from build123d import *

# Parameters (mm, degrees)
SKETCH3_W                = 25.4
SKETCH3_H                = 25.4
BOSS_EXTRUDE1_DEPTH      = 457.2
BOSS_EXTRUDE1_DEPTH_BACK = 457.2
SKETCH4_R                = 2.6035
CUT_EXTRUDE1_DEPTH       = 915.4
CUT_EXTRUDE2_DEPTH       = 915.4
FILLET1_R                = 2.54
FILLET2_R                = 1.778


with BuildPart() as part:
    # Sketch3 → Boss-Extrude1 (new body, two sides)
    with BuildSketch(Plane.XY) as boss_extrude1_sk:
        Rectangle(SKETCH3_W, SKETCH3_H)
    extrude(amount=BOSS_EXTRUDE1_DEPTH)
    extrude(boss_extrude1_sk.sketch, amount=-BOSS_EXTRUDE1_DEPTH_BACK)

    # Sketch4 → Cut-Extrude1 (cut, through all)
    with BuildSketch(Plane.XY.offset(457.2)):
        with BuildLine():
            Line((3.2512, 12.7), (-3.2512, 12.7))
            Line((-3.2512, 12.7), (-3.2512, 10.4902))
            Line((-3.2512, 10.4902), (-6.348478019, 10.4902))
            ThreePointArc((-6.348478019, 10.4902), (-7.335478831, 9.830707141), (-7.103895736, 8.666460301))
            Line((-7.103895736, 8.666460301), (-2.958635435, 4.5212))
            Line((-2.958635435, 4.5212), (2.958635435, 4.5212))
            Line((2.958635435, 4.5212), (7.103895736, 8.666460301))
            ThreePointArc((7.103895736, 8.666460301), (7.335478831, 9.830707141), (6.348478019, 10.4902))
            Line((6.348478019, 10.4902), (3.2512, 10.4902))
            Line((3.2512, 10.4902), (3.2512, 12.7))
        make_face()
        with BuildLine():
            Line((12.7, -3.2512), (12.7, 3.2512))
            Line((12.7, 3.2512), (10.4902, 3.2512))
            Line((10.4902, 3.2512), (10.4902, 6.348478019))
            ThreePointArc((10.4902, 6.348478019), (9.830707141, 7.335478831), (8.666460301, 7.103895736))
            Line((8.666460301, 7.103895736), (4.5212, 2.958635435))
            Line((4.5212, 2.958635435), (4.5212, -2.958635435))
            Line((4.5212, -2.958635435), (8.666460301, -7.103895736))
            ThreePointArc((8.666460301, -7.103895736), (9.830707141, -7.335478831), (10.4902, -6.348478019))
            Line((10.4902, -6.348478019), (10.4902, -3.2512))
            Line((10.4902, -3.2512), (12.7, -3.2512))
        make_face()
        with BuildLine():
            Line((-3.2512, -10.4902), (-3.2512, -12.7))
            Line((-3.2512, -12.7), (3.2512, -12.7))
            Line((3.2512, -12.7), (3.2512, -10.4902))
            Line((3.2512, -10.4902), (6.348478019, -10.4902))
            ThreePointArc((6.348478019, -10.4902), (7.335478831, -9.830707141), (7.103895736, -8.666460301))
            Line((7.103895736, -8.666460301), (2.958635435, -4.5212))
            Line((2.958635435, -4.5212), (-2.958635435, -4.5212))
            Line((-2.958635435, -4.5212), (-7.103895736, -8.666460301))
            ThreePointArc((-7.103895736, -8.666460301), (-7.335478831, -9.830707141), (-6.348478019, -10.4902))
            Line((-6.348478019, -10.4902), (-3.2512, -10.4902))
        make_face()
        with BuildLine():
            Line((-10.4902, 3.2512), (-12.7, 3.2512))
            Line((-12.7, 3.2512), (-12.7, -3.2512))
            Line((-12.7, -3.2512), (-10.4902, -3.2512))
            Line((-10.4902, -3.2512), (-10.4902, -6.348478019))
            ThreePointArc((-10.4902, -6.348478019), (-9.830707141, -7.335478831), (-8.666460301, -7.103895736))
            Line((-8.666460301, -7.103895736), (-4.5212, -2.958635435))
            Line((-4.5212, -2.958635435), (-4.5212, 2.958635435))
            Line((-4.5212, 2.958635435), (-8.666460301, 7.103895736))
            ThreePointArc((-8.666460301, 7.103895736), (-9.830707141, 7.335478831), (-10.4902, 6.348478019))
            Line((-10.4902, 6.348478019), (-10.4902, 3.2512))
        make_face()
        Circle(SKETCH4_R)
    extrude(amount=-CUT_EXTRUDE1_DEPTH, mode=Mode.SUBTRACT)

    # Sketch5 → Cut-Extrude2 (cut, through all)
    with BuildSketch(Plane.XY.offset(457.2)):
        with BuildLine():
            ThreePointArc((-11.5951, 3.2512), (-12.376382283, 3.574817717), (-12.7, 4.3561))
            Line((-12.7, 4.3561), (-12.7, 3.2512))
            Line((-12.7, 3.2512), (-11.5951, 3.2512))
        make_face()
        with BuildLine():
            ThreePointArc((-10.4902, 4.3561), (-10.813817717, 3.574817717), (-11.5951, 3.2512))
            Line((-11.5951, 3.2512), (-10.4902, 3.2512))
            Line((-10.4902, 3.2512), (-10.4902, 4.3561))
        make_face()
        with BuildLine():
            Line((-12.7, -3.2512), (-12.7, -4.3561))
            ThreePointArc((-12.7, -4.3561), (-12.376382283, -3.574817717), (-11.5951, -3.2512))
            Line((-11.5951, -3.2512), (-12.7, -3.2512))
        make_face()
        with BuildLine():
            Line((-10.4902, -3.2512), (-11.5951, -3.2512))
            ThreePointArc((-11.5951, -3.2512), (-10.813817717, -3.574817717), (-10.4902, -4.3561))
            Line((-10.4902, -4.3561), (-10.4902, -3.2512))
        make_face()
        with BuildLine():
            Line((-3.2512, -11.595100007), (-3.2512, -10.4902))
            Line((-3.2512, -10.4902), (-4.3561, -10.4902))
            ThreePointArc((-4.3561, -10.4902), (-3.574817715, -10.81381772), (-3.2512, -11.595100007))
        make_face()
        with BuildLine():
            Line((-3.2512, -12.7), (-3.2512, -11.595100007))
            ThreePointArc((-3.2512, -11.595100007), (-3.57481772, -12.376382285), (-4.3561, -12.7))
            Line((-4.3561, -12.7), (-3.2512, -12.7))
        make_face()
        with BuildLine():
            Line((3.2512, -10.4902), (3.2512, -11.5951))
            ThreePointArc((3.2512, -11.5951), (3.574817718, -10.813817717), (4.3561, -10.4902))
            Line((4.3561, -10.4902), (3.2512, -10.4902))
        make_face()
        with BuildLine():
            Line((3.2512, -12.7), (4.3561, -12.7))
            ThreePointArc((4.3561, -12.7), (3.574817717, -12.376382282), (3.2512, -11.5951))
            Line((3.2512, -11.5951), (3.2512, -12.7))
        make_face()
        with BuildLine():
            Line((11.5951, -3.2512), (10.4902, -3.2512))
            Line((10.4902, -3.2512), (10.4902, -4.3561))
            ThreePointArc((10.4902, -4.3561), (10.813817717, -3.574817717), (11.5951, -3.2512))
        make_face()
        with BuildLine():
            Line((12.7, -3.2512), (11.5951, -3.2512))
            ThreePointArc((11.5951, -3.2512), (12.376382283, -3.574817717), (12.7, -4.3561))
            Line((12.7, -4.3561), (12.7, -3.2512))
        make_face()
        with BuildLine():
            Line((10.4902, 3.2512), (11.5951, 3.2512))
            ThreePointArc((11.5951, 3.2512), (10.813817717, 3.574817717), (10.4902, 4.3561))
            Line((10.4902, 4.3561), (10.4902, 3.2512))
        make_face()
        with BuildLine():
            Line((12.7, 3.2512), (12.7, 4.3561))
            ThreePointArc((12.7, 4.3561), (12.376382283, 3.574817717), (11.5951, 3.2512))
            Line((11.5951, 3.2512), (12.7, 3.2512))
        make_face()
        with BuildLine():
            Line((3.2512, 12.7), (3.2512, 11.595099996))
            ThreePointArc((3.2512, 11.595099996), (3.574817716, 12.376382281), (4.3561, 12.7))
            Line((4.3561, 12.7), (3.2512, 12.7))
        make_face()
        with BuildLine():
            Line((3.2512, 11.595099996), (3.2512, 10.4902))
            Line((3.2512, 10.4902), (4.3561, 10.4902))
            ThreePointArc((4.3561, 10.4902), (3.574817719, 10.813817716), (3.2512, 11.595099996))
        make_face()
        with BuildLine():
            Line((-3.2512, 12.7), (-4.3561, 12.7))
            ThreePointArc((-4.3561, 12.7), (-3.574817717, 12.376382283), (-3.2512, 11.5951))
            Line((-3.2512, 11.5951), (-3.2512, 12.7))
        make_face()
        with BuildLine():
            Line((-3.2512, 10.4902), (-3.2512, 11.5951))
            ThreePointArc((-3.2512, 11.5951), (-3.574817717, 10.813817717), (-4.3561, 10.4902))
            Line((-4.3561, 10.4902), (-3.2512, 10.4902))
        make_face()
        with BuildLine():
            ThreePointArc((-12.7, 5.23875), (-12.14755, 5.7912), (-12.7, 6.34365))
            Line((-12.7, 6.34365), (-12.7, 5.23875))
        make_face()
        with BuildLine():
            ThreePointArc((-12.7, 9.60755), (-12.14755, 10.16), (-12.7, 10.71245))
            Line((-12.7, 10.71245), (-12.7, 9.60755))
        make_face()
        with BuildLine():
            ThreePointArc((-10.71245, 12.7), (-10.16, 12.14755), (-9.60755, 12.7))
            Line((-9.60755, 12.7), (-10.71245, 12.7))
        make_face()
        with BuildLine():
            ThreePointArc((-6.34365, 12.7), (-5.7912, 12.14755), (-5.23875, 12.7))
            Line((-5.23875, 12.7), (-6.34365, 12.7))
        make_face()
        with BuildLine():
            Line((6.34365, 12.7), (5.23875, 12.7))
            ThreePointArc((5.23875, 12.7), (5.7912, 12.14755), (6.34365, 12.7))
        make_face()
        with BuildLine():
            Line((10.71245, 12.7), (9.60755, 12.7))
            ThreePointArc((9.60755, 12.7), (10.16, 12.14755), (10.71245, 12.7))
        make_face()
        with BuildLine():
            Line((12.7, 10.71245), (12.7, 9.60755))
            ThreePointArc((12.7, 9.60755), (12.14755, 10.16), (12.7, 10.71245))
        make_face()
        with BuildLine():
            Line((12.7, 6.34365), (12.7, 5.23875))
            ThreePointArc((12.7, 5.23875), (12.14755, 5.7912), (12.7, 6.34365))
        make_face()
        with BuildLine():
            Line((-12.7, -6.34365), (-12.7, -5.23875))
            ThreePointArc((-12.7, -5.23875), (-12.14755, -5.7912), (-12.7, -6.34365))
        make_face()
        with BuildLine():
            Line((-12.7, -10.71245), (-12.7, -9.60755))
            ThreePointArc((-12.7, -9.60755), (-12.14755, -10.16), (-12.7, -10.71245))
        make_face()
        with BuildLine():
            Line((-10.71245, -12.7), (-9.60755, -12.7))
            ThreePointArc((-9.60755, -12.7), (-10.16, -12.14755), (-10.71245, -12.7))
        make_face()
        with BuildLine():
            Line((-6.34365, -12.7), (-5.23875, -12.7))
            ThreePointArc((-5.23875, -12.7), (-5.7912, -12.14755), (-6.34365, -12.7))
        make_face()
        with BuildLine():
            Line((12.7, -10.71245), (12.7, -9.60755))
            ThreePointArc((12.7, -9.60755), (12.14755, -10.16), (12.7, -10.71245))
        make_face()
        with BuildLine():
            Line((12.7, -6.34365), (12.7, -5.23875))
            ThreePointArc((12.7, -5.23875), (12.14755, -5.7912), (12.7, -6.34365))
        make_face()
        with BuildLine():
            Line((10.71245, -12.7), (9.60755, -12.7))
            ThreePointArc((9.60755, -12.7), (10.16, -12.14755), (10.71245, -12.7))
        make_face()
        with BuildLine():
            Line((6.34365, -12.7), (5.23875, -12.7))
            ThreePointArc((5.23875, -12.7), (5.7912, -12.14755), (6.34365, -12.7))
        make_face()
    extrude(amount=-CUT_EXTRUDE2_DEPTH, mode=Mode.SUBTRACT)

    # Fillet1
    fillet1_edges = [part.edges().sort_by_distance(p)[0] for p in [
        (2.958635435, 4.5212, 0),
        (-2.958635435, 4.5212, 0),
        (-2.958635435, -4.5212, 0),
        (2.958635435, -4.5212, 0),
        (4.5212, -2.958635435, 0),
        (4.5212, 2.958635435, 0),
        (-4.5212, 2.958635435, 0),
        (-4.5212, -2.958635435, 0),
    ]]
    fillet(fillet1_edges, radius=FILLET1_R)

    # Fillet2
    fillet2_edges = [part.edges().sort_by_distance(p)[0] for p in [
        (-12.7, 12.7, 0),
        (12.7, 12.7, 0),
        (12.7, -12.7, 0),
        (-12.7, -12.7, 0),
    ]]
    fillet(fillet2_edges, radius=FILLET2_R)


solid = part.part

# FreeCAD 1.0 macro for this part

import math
import FreeCAD as App
import Part
import Sketcher
Q = App.Units.Quantity


def edges_at(feature, points):
    """Names of the edges that pass closest to the given points."""
    edges = feature.Shape.Edges
    near = lambda p: min(range(len(edges)), key=lambda i: edges[i].distToShape(Part.Vertex(*p))[0])
    return sorted({f"Edge{near(p) + 1}" for p in points})

doc = App.newDocument("Part")
params = doc.addObject("Spreadsheet::Sheet", "Params")
for row, (alias, value) in enumerate([
    ("sketch1_width", "1 in"),
    ("pad1_length", "18 in"),
    ("pad1_length2", "18 in"),
    ("sketch2_diameter", "0.205 in"),
    ("sketch2_width", "0.256 in"),
    ("sketch2_width2", "0.087 in"),
    ("fillet_radius", "0.1 in"),
    ("fillet2_radius", "0.07 in"),
], start=1):
    params.set(f"A{row}", alias)
    params.set(f"B{row}", "=" + value)
    params.setAlias(f"B{row}", alias)

body = doc.addObject("PartDesign::Body", "Body")

sketch1 = body.newObject("Sketcher::SketchObject", "Sketch")
sketch1.AttachmentSupport = (doc.getObject("XY_Plane"), [""])
sketch1.MapMode = "FlatFace"
sketch1.addGeometry(Part.LineSegment(App.Vector(-12.7, 12.7, 0), App.Vector(-12.7, -12.7, 0)), False)
sketch1.addGeometry(Part.LineSegment(App.Vector(-12.7, -12.7, 0), App.Vector(12.7, -12.7, 0)), False)
sketch1.addGeometry(Part.LineSegment(App.Vector(12.7, -12.7, 0), App.Vector(12.7, 12.7, 0)), False)
sketch1.addGeometry(Part.LineSegment(App.Vector(12.7, 12.7, 0), App.Vector(-12.7, 12.7, 0)), False)
sketch1.addConstraint(Sketcher.Constraint("Coincident", 0, 2, 1, 1))
sketch1.addConstraint(Sketcher.Constraint("Coincident", 1, 2, 2, 1))
sketch1.addConstraint(Sketcher.Constraint("Coincident", 2, 2, 3, 1))
sketch1.addConstraint(Sketcher.Constraint("Coincident", 3, 2, 0, 1))
sketch1.addConstraint(Sketcher.Constraint("Vertical", 0))
sketch1.addConstraint(Sketcher.Constraint("Horizontal", 1))
sketch1.addConstraint(Sketcher.Constraint("Vertical", 2))
sketch1.addConstraint(Sketcher.Constraint("Horizontal", 3))
sketch1.addConstraint(Sketcher.Constraint("Symmetric", 0, 2, 2, 2, -1, 1))
sketch1.addConstraint(Sketcher.Constraint("Equal", 3, 0))
sketch1.addConstraint(Sketcher.Constraint("DistanceX", 1, 1, 1, 2, Q("1 in")))
sketch1.setExpression("Constraints[10]", "Params.sketch1_width")
pad1 = body.newObject("PartDesign::Pad", "Pad")
pad1.Profile = sketch1
pad1.Type = "TwoLengths"
pad1.setExpression("Length", "Params.pad1_length")
pad1.setExpression("Length2", "Params.pad1_length2")

sketch2 = body.newObject("Sketcher::SketchObject", "Sketch001")
sketch2.AttachmentSupport = (doc.getObject("XY_Plane"), [""])
sketch2.MapMode = "FlatFace"
sketch2.AttachmentOffset = App.Placement(App.Vector(0, 0, 18 * 25.4), App.Rotation())
sketch2.addGeometry(Part.LineSegment(App.Vector(3.2512, 12.7, 0), App.Vector(-3.2512, 12.7, 0)), False)
sketch2.addGeometry(Part.LineSegment(App.Vector(-3.2512, 12.7, 0), App.Vector(-3.2512, 10.4902, 0)), False)
sketch2.addGeometry(Part.LineSegment(App.Vector(-3.2512, 10.4902, 0), App.Vector(-6.348478, 10.4902, 0)), False)
sketch2.addGeometry(Part.ArcOfCircle(Part.Circle(App.Vector(-6.348478, 9.421878, 0), App.Vector(0, 0, 1), 1.068322), math.radians(90), math.radians(225)), False)
sketch2.addGeometry(Part.LineSegment(App.Vector(-7.103896, 8.66646, 0), App.Vector(-2.958635, 4.5212, 0)), False)
sketch2.addGeometry(Part.LineSegment(App.Vector(-2.958635, 4.5212, 0), App.Vector(2.958635, 4.5212, 0)), False)
sketch2.addGeometry(Part.LineSegment(App.Vector(2.958635, 4.5212, 0), App.Vector(7.103896, 8.66646, 0)), False)
sketch2.addGeometry(Part.ArcOfCircle(Part.Circle(App.Vector(6.348478, 9.421878, 0), App.Vector(0, 0, 1), 1.068322), math.radians(-45), math.radians(90)), False)
sketch2.addGeometry(Part.LineSegment(App.Vector(6.348478, 10.4902, 0), App.Vector(3.2512, 10.4902, 0)), False)
sketch2.addGeometry(Part.LineSegment(App.Vector(3.2512, 10.4902, 0), App.Vector(3.2512, 12.7, 0)), False)
sketch2.addGeometry(Part.LineSegment(App.Vector(12.7, -3.2512, 0), App.Vector(12.7, 3.2512, 0)), False)
sketch2.addGeometry(Part.LineSegment(App.Vector(12.7, 3.2512, 0), App.Vector(10.4902, 3.2512, 0)), False)
sketch2.addGeometry(Part.LineSegment(App.Vector(10.4902, 3.2512, 0), App.Vector(10.4902, 6.348478, 0)), False)
sketch2.addGeometry(Part.ArcOfCircle(Part.Circle(App.Vector(9.421878, 6.348478, 0), App.Vector(0, 0, 1), 1.068322), math.radians(0), math.radians(135)), False)
sketch2.addGeometry(Part.LineSegment(App.Vector(8.66646, 7.103896, 0), App.Vector(4.5212, 2.958635, 0)), False)
sketch2.addGeometry(Part.LineSegment(App.Vector(4.5212, 2.958635, 0), App.Vector(4.5212, -2.958635, 0)), False)
sketch2.addGeometry(Part.LineSegment(App.Vector(4.5212, -2.958635, 0), App.Vector(8.66646, -7.103896, 0)), False)
sketch2.addGeometry(Part.ArcOfCircle(Part.Circle(App.Vector(9.421878, -6.348478, 0), App.Vector(0, 0, 1), 1.068322), math.radians(-135), math.radians(0)), False)
sketch2.addGeometry(Part.LineSegment(App.Vector(10.4902, -6.348478, 0), App.Vector(10.4902, -3.2512, 0)), False)
sketch2.addGeometry(Part.LineSegment(App.Vector(10.4902, -3.2512, 0), App.Vector(12.7, -3.2512, 0)), False)
sketch2.addGeometry(Part.LineSegment(App.Vector(-3.2512, -10.4902, 0), App.Vector(-3.2512, -12.7, 0)), False)
sketch2.addGeometry(Part.LineSegment(App.Vector(-3.2512, -12.7, 0), App.Vector(3.2512, -12.7, 0)), False)
sketch2.addGeometry(Part.LineSegment(App.Vector(3.2512, -12.7, 0), App.Vector(3.2512, -10.4902, 0)), False)
sketch2.addGeometry(Part.LineSegment(App.Vector(3.2512, -10.4902, 0), App.Vector(6.348478, -10.4902, 0)), False)
sketch2.addGeometry(Part.ArcOfCircle(Part.Circle(App.Vector(6.348478, -9.421878, 0), App.Vector(0, 0, 1), 1.068322), math.radians(-90), math.radians(45)), False)
sketch2.addGeometry(Part.LineSegment(App.Vector(7.103896, -8.66646, 0), App.Vector(2.958635, -4.5212, 0)), False)
sketch2.addGeometry(Part.LineSegment(App.Vector(2.958635, -4.5212, 0), App.Vector(-2.958635, -4.5212, 0)), False)
sketch2.addGeometry(Part.LineSegment(App.Vector(-2.958635, -4.5212, 0), App.Vector(-7.103896, -8.66646, 0)), False)
sketch2.addGeometry(Part.ArcOfCircle(Part.Circle(App.Vector(-6.348478, -9.421878, 0), App.Vector(0, 0, 1), 1.068322), math.radians(135), math.radians(270)), False)
sketch2.addGeometry(Part.LineSegment(App.Vector(-6.348478, -10.4902, 0), App.Vector(-3.2512, -10.4902, 0)), False)
sketch2.addGeometry(Part.LineSegment(App.Vector(-10.4902, 3.2512, 0), App.Vector(-12.7, 3.2512, 0)), False)
sketch2.addGeometry(Part.LineSegment(App.Vector(-12.7, 3.2512, 0), App.Vector(-12.7, -3.2512, 0)), False)
sketch2.addGeometry(Part.LineSegment(App.Vector(-12.7, -3.2512, 0), App.Vector(-10.4902, -3.2512, 0)), False)
sketch2.addGeometry(Part.LineSegment(App.Vector(-10.4902, -3.2512, 0), App.Vector(-10.4902, -6.348478, 0)), False)
sketch2.addGeometry(Part.ArcOfCircle(Part.Circle(App.Vector(-9.421878, -6.348478, 0), App.Vector(0, 0, 1), 1.068322), math.radians(-180), math.radians(-45)), False)
sketch2.addGeometry(Part.LineSegment(App.Vector(-8.66646, -7.103896, 0), App.Vector(-4.5212, -2.958635, 0)), False)
sketch2.addGeometry(Part.LineSegment(App.Vector(-4.5212, -2.958635, 0), App.Vector(-4.5212, 2.958635, 0)), False)
sketch2.addGeometry(Part.LineSegment(App.Vector(-4.5212, 2.958635, 0), App.Vector(-8.66646, 7.103896, 0)), False)
sketch2.addGeometry(Part.ArcOfCircle(Part.Circle(App.Vector(-9.421878, 6.348478, 0), App.Vector(0, 0, 1), 1.068322), math.radians(45), math.radians(180)), False)
sketch2.addGeometry(Part.LineSegment(App.Vector(-10.4902, 6.348478, 0), App.Vector(-10.4902, 3.2512, 0)), False)
sketch2.addGeometry(Part.Circle(App.Vector(0, 0, 0), App.Vector(0, 0, 1), 2.6035), False)
sketch2.addConstraint(Sketcher.Constraint("Coincident", 0, 2, 1, 1))
sketch2.addConstraint(Sketcher.Constraint("Coincident", 1, 2, 2, 1))
sketch2.addConstraint(Sketcher.Constraint("Tangent", 2, 2, 3, 1))
sketch2.addConstraint(Sketcher.Constraint("Tangent", 3, 2, 4, 1))
sketch2.addConstraint(Sketcher.Constraint("Coincident", 4, 2, 5, 1))
sketch2.addConstraint(Sketcher.Constraint("Coincident", 5, 2, 6, 1))
sketch2.addConstraint(Sketcher.Constraint("Tangent", 6, 2, 7, 1))
sketch2.addConstraint(Sketcher.Constraint("Tangent", 7, 2, 8, 1))
sketch2.addConstraint(Sketcher.Constraint("Coincident", 8, 2, 9, 1))
sketch2.addConstraint(Sketcher.Constraint("Coincident", 9, 2, 0, 1))
sketch2.addConstraint(Sketcher.Constraint("Coincident", 10, 2, 11, 1))
sketch2.addConstraint(Sketcher.Constraint("Coincident", 11, 2, 12, 1))
sketch2.addConstraint(Sketcher.Constraint("Tangent", 12, 2, 13, 1))
sketch2.addConstraint(Sketcher.Constraint("Tangent", 13, 2, 14, 1))
sketch2.addConstraint(Sketcher.Constraint("Coincident", 14, 2, 15, 1))
sketch2.addConstraint(Sketcher.Constraint("Coincident", 15, 2, 16, 1))
sketch2.addConstraint(Sketcher.Constraint("Tangent", 16, 2, 17, 1))
sketch2.addConstraint(Sketcher.Constraint("Tangent", 17, 2, 18, 1))
sketch2.addConstraint(Sketcher.Constraint("Coincident", 18, 2, 19, 1))
sketch2.addConstraint(Sketcher.Constraint("Coincident", 19, 2, 10, 1))
sketch2.addConstraint(Sketcher.Constraint("Coincident", 20, 2, 21, 1))
sketch2.addConstraint(Sketcher.Constraint("Coincident", 21, 2, 22, 1))
sketch2.addConstraint(Sketcher.Constraint("Coincident", 22, 2, 23, 1))
sketch2.addConstraint(Sketcher.Constraint("Tangent", 23, 2, 24, 1))
sketch2.addConstraint(Sketcher.Constraint("Tangent", 24, 2, 25, 1))
sketch2.addConstraint(Sketcher.Constraint("Coincident", 25, 2, 26, 1))
sketch2.addConstraint(Sketcher.Constraint("Coincident", 26, 2, 27, 1))
sketch2.addConstraint(Sketcher.Constraint("Tangent", 27, 2, 28, 1))
sketch2.addConstraint(Sketcher.Constraint("Tangent", 28, 2, 29, 1))
sketch2.addConstraint(Sketcher.Constraint("Coincident", 29, 2, 20, 1))
sketch2.addConstraint(Sketcher.Constraint("Coincident", 30, 2, 31, 1))
sketch2.addConstraint(Sketcher.Constraint("Coincident", 31, 2, 32, 1))
sketch2.addConstraint(Sketcher.Constraint("Coincident", 32, 2, 33, 1))
sketch2.addConstraint(Sketcher.Constraint("Tangent", 33, 2, 34, 1))
sketch2.addConstraint(Sketcher.Constraint("Tangent", 34, 2, 35, 1))
sketch2.addConstraint(Sketcher.Constraint("Coincident", 35, 2, 36, 1))
sketch2.addConstraint(Sketcher.Constraint("Coincident", 36, 2, 37, 1))
sketch2.addConstraint(Sketcher.Constraint("Tangent", 37, 2, 38, 1))
sketch2.addConstraint(Sketcher.Constraint("Tangent", 38, 2, 39, 1))
sketch2.addConstraint(Sketcher.Constraint("Coincident", 39, 2, 30, 1))
sketch2.addConstraint(Sketcher.Constraint("Horizontal", 0))
sketch2.addConstraint(Sketcher.Constraint("Vertical", 1))
sketch2.addConstraint(Sketcher.Constraint("Horizontal", 2))
sketch2.addConstraint(Sketcher.Constraint("Horizontal", 5))
sketch2.addConstraint(Sketcher.Constraint("Horizontal", 8))
sketch2.addConstraint(Sketcher.Constraint("Vertical", 9))
sketch2.addConstraint(Sketcher.Constraint("Vertical", 10))
sketch2.addConstraint(Sketcher.Constraint("Horizontal", 11))
sketch2.addConstraint(Sketcher.Constraint("Vertical", 12))
sketch2.addConstraint(Sketcher.Constraint("Vertical", 15))
sketch2.addConstraint(Sketcher.Constraint("Vertical", 18))
sketch2.addConstraint(Sketcher.Constraint("Horizontal", 19))
sketch2.addConstraint(Sketcher.Constraint("Vertical", 20))
sketch2.addConstraint(Sketcher.Constraint("Horizontal", 21))
sketch2.addConstraint(Sketcher.Constraint("Vertical", 22))
sketch2.addConstraint(Sketcher.Constraint("Horizontal", 23))
sketch2.addConstraint(Sketcher.Constraint("Horizontal", 26))
sketch2.addConstraint(Sketcher.Constraint("Horizontal", 29))
sketch2.addConstraint(Sketcher.Constraint("Horizontal", 30))
sketch2.addConstraint(Sketcher.Constraint("Vertical", 31))
sketch2.addConstraint(Sketcher.Constraint("Horizontal", 32))
sketch2.addConstraint(Sketcher.Constraint("Vertical", 33))
sketch2.addConstraint(Sketcher.Constraint("Vertical", 36))
sketch2.addConstraint(Sketcher.Constraint("Vertical", 39))
sketch2.addConstraint(Sketcher.Constraint("Coincident", 40, 3, -1, 1))
sketch2.addConstraint(Sketcher.Constraint("Equal", 3, 7))
sketch2.addConstraint(Sketcher.Constraint("Equal", 7, 13))
sketch2.addConstraint(Sketcher.Constraint("Equal", 13, 17))
sketch2.addConstraint(Sketcher.Constraint("Equal", 17, 24))
sketch2.addConstraint(Sketcher.Constraint("Equal", 24, 28))
sketch2.addConstraint(Sketcher.Constraint("Equal", 28, 34))
sketch2.addConstraint(Sketcher.Constraint("Equal", 34, 38))
sketch2.addConstraint(Sketcher.Constraint("Symmetric", 3, 3, 24, 3, -1, 1))
sketch2.addConstraint(Sketcher.Constraint("Symmetric", 7, 3, 28, 3, -1, 1))
sketch2.addConstraint(Sketcher.Constraint("Symmetric", 13, 3, 34, 3, -1, 1))
sketch2.addConstraint(Sketcher.Constraint("Symmetric", 17, 3, 38, 3, -1, 1))
sketch2.addConstraint(Sketcher.Constraint("Symmetric", 9, 2, 20, 2, -1, 1))
sketch2.addConstraint(Sketcher.Constraint("Symmetric", 4, 2, 25, 2, -1, 1))
sketch2.addConstraint(Sketcher.Constraint("Symmetric", 19, 2, 30, 2, -1, 1))
sketch2.addConstraint(Sketcher.Constraint("Symmetric", 14, 2, 35, 2, -1, 1))
sketch2.addConstraint(Sketcher.Constraint("Symmetric", 3, 3, 7, 3, -2))
sketch2.addConstraint(Sketcher.Constraint("Symmetric", 17, 3, 34, 3, -2))
sketch2.addConstraint(Sketcher.Constraint("Perpendicular", 4, 6))
sketch2.addConstraint(Sketcher.Constraint("Parallel", 6, 14))
sketch2.addConstraint(Sketcher.Constraint("Perpendicular", 14, 16))
sketch2.addConstraint(Sketcher.Constraint("Perpendicular", 25, 27))
sketch2.addConstraint(Sketcher.Constraint("Perpendicular", 35, 37))
sketch2.addConstraint(Sketcher.Constraint("Horizontal", 3, 2, 6, 2))
sketch2.addConstraint(Sketcher.Constraint("Horizontal", 11, 2, 30, 2))
sketch2.addConstraint(Sketcher.Constraint("Horizontal", 19, 2, 31, 2))
sketch2.addConstraint(Sketcher.Constraint("Vertical", 1, 2, 20, 2))
sketch2.addConstraint(Sketcher.Constraint("Vertical", 9, 2, 21, 2))
sketch2.addConstraint(Sketcher.Constraint("Equal", 32, 1))
sketch2.addConstraint(Sketcher.Constraint("Equal", 21, 10))
sketch2.addConstraint(Sketcher.Constraint("Equal", 29, 12))
sketch2.addConstraint(Sketcher.Constraint("Equal", 26, 15))
sketch2.addConstraint(Sketcher.Constraint("Diameter", 40, Q("0.205 in")))
sketch2.addConstraint(Sketcher.Constraint("DistanceY", -1, 1, 0, 2, Q("0.5 in")))
sketch2.addConstraint(Sketcher.Constraint("DistanceX", -1, 1, 10, 2, Q("0.5 in")))
sketch2.addConstraint(Sketcher.Constraint("DistanceX", 0, 2, 0, 1, Q("0.256 in")))
sketch2.addConstraint(Sketcher.Constraint("DistanceX", 11, 2, 11, 1, Q("0.087 in")))
sketch2.addConstraint(Sketcher.Constraint("DistanceY", 10, 2, 5, 2, Q("0.05 in")))
sketch2.addConstraint(Sketcher.Constraint("Radius", 3, 1.068322))
sketch2.addConstraint(Sketcher.Constraint("DistanceX", 7, 3, 13, 3, Q("0.121 in")))
sketch2.setExpression("Constraints[96]", "Params.sketch2_diameter")
sketch2.setExpression("Constraints[99]", "Params.sketch2_width")
sketch2.setExpression("Constraints[100]", "Params.sketch2_width2")
pocket1 = body.newObject("PartDesign::Pocket", "Pocket")
pocket1.Profile = sketch2
pocket1.Type = "ThroughAll"

sketch3 = body.newObject("Sketcher::SketchObject", "Sketch002")
sketch3.AttachmentSupport = (doc.getObject("XY_Plane"), [""])
sketch3.MapMode = "FlatFace"
sketch3.AttachmentOffset = App.Placement(App.Vector(0, 0, 18 * 25.4), App.Rotation())
sketch3.addGeometry(Part.ArcOfCircle(Part.Circle(App.Vector(-11.5951, 4.3561, 0), App.Vector(0, 0, 1), 1.1049), math.radians(180), math.radians(270)), False)
sketch3.addGeometry(Part.LineSegment(App.Vector(-12.7, 4.3561, 0), App.Vector(-12.7, 3.2512, 0)), False)
sketch3.addGeometry(Part.LineSegment(App.Vector(-12.7, 3.2512, 0), App.Vector(-11.5951, 3.2512, 0)), False)
sketch3.addGeometry(Part.ArcOfCircle(Part.Circle(App.Vector(-11.5951, 4.3561, 0), App.Vector(0, 0, 1), 1.1049), math.radians(-90), math.radians(0)), False)
sketch3.addGeometry(Part.LineSegment(App.Vector(-11.5951, 3.2512, 0), App.Vector(-10.4902, 3.2512, 0)), False)
sketch3.addGeometry(Part.LineSegment(App.Vector(-10.4902, 3.2512, 0), App.Vector(-10.4902, 4.3561, 0)), False)
sketch3.addGeometry(Part.LineSegment(App.Vector(-12.7, -3.2512, 0), App.Vector(-12.7, -4.3561, 0)), False)
sketch3.addGeometry(Part.ArcOfCircle(Part.Circle(App.Vector(-11.5951, -4.3561, 0), App.Vector(0, 0, 1), 1.1049), math.radians(90), math.radians(180)), False)
sketch3.addGeometry(Part.LineSegment(App.Vector(-11.5951, -3.2512, 0), App.Vector(-12.7, -3.2512, 0)), False)
sketch3.addGeometry(Part.LineSegment(App.Vector(-10.4902, -3.2512, 0), App.Vector(-11.5951, -3.2512, 0)), False)
sketch3.addGeometry(Part.ArcOfCircle(Part.Circle(App.Vector(-11.5951, -4.3561, 0), App.Vector(0, 0, 1), 1.1049), math.radians(0), math.radians(90)), False)
sketch3.addGeometry(Part.LineSegment(App.Vector(-10.4902, -4.3561, 0), App.Vector(-10.4902, -3.2512, 0)), False)
sketch3.addGeometry(Part.LineSegment(App.Vector(-3.2512, -11.5951, 0), App.Vector(-3.2512, -10.4902, 0)), False)
sketch3.addGeometry(Part.LineSegment(App.Vector(-3.2512, -10.4902, 0), App.Vector(-4.3561, -10.4902, 0)), False)
sketch3.addGeometry(Part.ArcOfCircle(Part.Circle(App.Vector(-4.3561, -11.5951, 0), App.Vector(0, 0, 1), 1.1049), math.radians(0), math.radians(90)), False)
sketch3.addGeometry(Part.LineSegment(App.Vector(-3.2512, -12.7, 0), App.Vector(-3.2512, -11.5951, 0)), False)
sketch3.addGeometry(Part.ArcOfCircle(Part.Circle(App.Vector(-4.3561, -11.5951, 0), App.Vector(0, 0, 1), 1.1049), math.radians(-90), math.radians(0)), False)
sketch3.addGeometry(Part.LineSegment(App.Vector(-4.3561, -12.7, 0), App.Vector(-3.2512, -12.7, 0)), False)
sketch3.addGeometry(Part.LineSegment(App.Vector(3.2512, -10.4902, 0), App.Vector(3.2512, -11.5951, 0)), False)
sketch3.addGeometry(Part.ArcOfCircle(Part.Circle(App.Vector(4.3561, -11.5951, 0), App.Vector(0, 0, 1), 1.1049), math.radians(90), math.radians(180)), False)
sketch3.addGeometry(Part.LineSegment(App.Vector(4.3561, -10.4902, 0), App.Vector(3.2512, -10.4902, 0)), False)
sketch3.addGeometry(Part.LineSegment(App.Vector(3.2512, -12.7, 0), App.Vector(4.3561, -12.7, 0)), False)
sketch3.addGeometry(Part.ArcOfCircle(Part.Circle(App.Vector(4.3561, -11.5951, 0), App.Vector(0, 0, 1), 1.1049), math.radians(180), math.radians(270)), False)
sketch3.addGeometry(Part.LineSegment(App.Vector(3.2512, -11.5951, 0), App.Vector(3.2512, -12.7, 0)), False)
sketch3.addGeometry(Part.LineSegment(App.Vector(11.5951, -3.2512, 0), App.Vector(10.4902, -3.2512, 0)), False)
sketch3.addGeometry(Part.LineSegment(App.Vector(10.4902, -3.2512, 0), App.Vector(10.4902, -4.3561, 0)), False)
sketch3.addGeometry(Part.ArcOfCircle(Part.Circle(App.Vector(11.5951, -4.3561, 0), App.Vector(0, 0, 1), 1.1049), math.radians(90), math.radians(180)), False)
sketch3.addGeometry(Part.LineSegment(App.Vector(12.7, -3.2512, 0), App.Vector(11.5951, -3.2512, 0)), False)
sketch3.addGeometry(Part.ArcOfCircle(Part.Circle(App.Vector(11.5951, -4.3561, 0), App.Vector(0, 0, 1), 1.1049), math.radians(0), math.radians(90)), False)
sketch3.addGeometry(Part.LineSegment(App.Vector(12.7, -4.3561, 0), App.Vector(12.7, -3.2512, 0)), False)
sketch3.addGeometry(Part.LineSegment(App.Vector(10.4902, 3.2512, 0), App.Vector(11.5951, 3.2512, 0)), False)
sketch3.addGeometry(Part.ArcOfCircle(Part.Circle(App.Vector(11.5951, 4.3561, 0), App.Vector(0, 0, 1), 1.1049), math.radians(180), math.radians(270)), False)
sketch3.addGeometry(Part.LineSegment(App.Vector(10.4902, 4.3561, 0), App.Vector(10.4902, 3.2512, 0)), False)
sketch3.addGeometry(Part.LineSegment(App.Vector(12.7, 3.2512, 0), App.Vector(12.7, 4.3561, 0)), False)
sketch3.addGeometry(Part.ArcOfCircle(Part.Circle(App.Vector(11.5951, 4.3561, 0), App.Vector(0, 0, 1), 1.1049), math.radians(-90), math.radians(0)), False)
sketch3.addGeometry(Part.LineSegment(App.Vector(11.5951, 3.2512, 0), App.Vector(12.7, 3.2512, 0)), False)
sketch3.addGeometry(Part.LineSegment(App.Vector(3.2512, 12.7, 0), App.Vector(3.2512, 11.5951, 0)), False)
sketch3.addGeometry(Part.ArcOfCircle(Part.Circle(App.Vector(4.3561, 11.5951, 0), App.Vector(0, 0, 1), 1.1049), math.radians(90), math.radians(180)), False)
sketch3.addGeometry(Part.LineSegment(App.Vector(4.3561, 12.7, 0), App.Vector(3.2512, 12.7, 0)), False)
sketch3.addGeometry(Part.LineSegment(App.Vector(3.2512, 11.5951, 0), App.Vector(3.2512, 10.4902, 0)), False)
sketch3.addGeometry(Part.LineSegment(App.Vector(3.2512, 10.4902, 0), App.Vector(4.3561, 10.4902, 0)), False)
sketch3.addGeometry(Part.ArcOfCircle(Part.Circle(App.Vector(4.3561, 11.5951, 0), App.Vector(0, 0, 1), 1.1049), math.radians(-180), math.radians(-90)), False)
sketch3.addGeometry(Part.LineSegment(App.Vector(-3.2512, 12.7, 0), App.Vector(-4.3561, 12.7, 0)), False)
sketch3.addGeometry(Part.ArcOfCircle(Part.Circle(App.Vector(-4.3561, 11.5951, 0), App.Vector(0, 0, 1), 1.1049), math.radians(0), math.radians(90)), False)
sketch3.addGeometry(Part.LineSegment(App.Vector(-3.2512, 11.5951, 0), App.Vector(-3.2512, 12.7, 0)), False)
sketch3.addGeometry(Part.LineSegment(App.Vector(-3.2512, 10.4902, 0), App.Vector(-3.2512, 11.5951, 0)), False)
sketch3.addGeometry(Part.ArcOfCircle(Part.Circle(App.Vector(-4.3561, 11.5951, 0), App.Vector(0, 0, 1), 1.1049), math.radians(-90), math.radians(0)), False)
sketch3.addGeometry(Part.LineSegment(App.Vector(-4.3561, 10.4902, 0), App.Vector(-3.2512, 10.4902, 0)), False)
sketch3.addGeometry(Part.ArcOfCircle(Part.Circle(App.Vector(-12.7, 5.7912, 0), App.Vector(0, 0, 1), 0.55245), math.radians(-90), math.radians(90)), False)
sketch3.addGeometry(Part.LineSegment(App.Vector(-12.7, 6.34365, 0), App.Vector(-12.7, 5.23875, 0)), False)
sketch3.addGeometry(Part.ArcOfCircle(Part.Circle(App.Vector(-12.7, 10.16, 0), App.Vector(0, 0, 1), 0.55245), math.radians(-90), math.radians(90)), False)
sketch3.addGeometry(Part.LineSegment(App.Vector(-12.7, 10.71245, 0), App.Vector(-12.7, 9.60755, 0)), False)
sketch3.addGeometry(Part.ArcOfCircle(Part.Circle(App.Vector(-10.16, 12.7, 0), App.Vector(0, 0, 1), 0.55245), math.radians(180), math.radians(360)), False)
sketch3.addGeometry(Part.LineSegment(App.Vector(-9.60755, 12.7, 0), App.Vector(-10.71245, 12.7, 0)), False)
sketch3.addGeometry(Part.ArcOfCircle(Part.Circle(App.Vector(-5.7912, 12.7, 0), App.Vector(0, 0, 1), 0.55245), math.radians(180), math.radians(360)), False)
sketch3.addGeometry(Part.LineSegment(App.Vector(-5.23875, 12.7, 0), App.Vector(-6.34365, 12.7, 0)), False)
sketch3.addGeometry(Part.LineSegment(App.Vector(6.34365, 12.7, 0), App.Vector(5.23875, 12.7, 0)), False)
sketch3.addGeometry(Part.ArcOfCircle(Part.Circle(App.Vector(5.7912, 12.7, 0), App.Vector(0, 0, 1), 0.55245), math.radians(180), math.radians(360)), False)
sketch3.addGeometry(Part.LineSegment(App.Vector(10.71245, 12.7, 0), App.Vector(9.60755, 12.7, 0)), False)
sketch3.addGeometry(Part.ArcOfCircle(Part.Circle(App.Vector(10.16, 12.7, 0), App.Vector(0, 0, 1), 0.55245), math.radians(180), math.radians(360)), False)
sketch3.addGeometry(Part.LineSegment(App.Vector(12.7, 9.60755, 0), App.Vector(12.7, 10.71245, 0)), False)
sketch3.addGeometry(Part.ArcOfCircle(Part.Circle(App.Vector(12.7, 10.16, 0), App.Vector(0, 0, 1), 0.55245), math.radians(90), math.radians(270)), False)
sketch3.addGeometry(Part.LineSegment(App.Vector(12.7, 5.23875, 0), App.Vector(12.7, 6.34365, 0)), False)
sketch3.addGeometry(Part.ArcOfCircle(Part.Circle(App.Vector(12.7, 5.7912, 0), App.Vector(0, 0, 1), 0.55245), math.radians(90), math.radians(270)), False)
sketch3.addGeometry(Part.LineSegment(App.Vector(-12.7, -5.23875, 0), App.Vector(-12.7, -6.34365, 0)), False)
sketch3.addGeometry(Part.ArcOfCircle(Part.Circle(App.Vector(-12.7, -5.7912, 0), App.Vector(0, 0, 1), 0.55245), math.radians(-90), math.radians(90)), False)
sketch3.addGeometry(Part.LineSegment(App.Vector(-12.7, -9.60755, 0), App.Vector(-12.7, -10.71245, 0)), False)
sketch3.addGeometry(Part.ArcOfCircle(Part.Circle(App.Vector(-12.7, -10.16, 0), App.Vector(0, 0, 1), 0.55245), math.radians(-90), math.radians(90)), False)
sketch3.addGeometry(Part.LineSegment(App.Vector(-10.71245, -12.7, 0), App.Vector(-9.60755, -12.7, 0)), False)
sketch3.addGeometry(Part.ArcOfCircle(Part.Circle(App.Vector(-10.16, -12.7, 0), App.Vector(0, 0, 1), 0.55245), math.radians(0), math.radians(180)), False)
sketch3.addGeometry(Part.LineSegment(App.Vector(-6.34365, -12.7, 0), App.Vector(-5.23875, -12.7, 0)), False)
sketch3.addGeometry(Part.ArcOfCircle(Part.Circle(App.Vector(-5.7912, -12.7, 0), App.Vector(0, 0, 1), 0.55245), math.radians(0), math.radians(180)), False)
sketch3.addGeometry(Part.LineSegment(App.Vector(12.7, -10.71245, 0), App.Vector(12.7, -9.60755, 0)), False)
sketch3.addGeometry(Part.ArcOfCircle(Part.Circle(App.Vector(12.7, -10.16, 0), App.Vector(0, 0, 1), 0.55245), math.radians(90), math.radians(270)), False)
sketch3.addGeometry(Part.LineSegment(App.Vector(12.7, -6.34365, 0), App.Vector(12.7, -5.23875, 0)), False)
sketch3.addGeometry(Part.ArcOfCircle(Part.Circle(App.Vector(12.7, -5.7912, 0), App.Vector(0, 0, 1), 0.55245), math.radians(90), math.radians(270)), False)
sketch3.addGeometry(Part.LineSegment(App.Vector(9.60755, -12.7, 0), App.Vector(10.71245, -12.7, 0)), False)
sketch3.addGeometry(Part.ArcOfCircle(Part.Circle(App.Vector(10.16, -12.7, 0), App.Vector(0, 0, 1), 0.55245), math.radians(0), math.radians(180)), False)
sketch3.addGeometry(Part.LineSegment(App.Vector(5.23875, -12.7, 0), App.Vector(6.34365, -12.7, 0)), False)
sketch3.addGeometry(Part.ArcOfCircle(Part.Circle(App.Vector(5.7912, -12.7, 0), App.Vector(0, 0, 1), 0.55245), math.radians(0), math.radians(180)), False)
sketch3.addConstraint(Sketcher.Constraint("Tangent", 0, 1, 1, 1))
sketch3.addConstraint(Sketcher.Constraint("Coincident", 1, 2, 2, 1))
sketch3.addConstraint(Sketcher.Constraint("Tangent", 2, 2, 0, 2))
sketch3.addConstraint(Sketcher.Constraint("Tangent", 3, 1, 4, 1))
sketch3.addConstraint(Sketcher.Constraint("Coincident", 4, 2, 5, 1))
sketch3.addConstraint(Sketcher.Constraint("Tangent", 5, 2, 3, 2))
sketch3.addConstraint(Sketcher.Constraint("Tangent", 6, 2, 7, 2))
sketch3.addConstraint(Sketcher.Constraint("Tangent", 7, 1, 8, 1))
sketch3.addConstraint(Sketcher.Constraint("Coincident", 8, 2, 6, 1))
sketch3.addConstraint(Sketcher.Constraint("Tangent", 9, 2, 10, 2))
sketch3.addConstraint(Sketcher.Constraint("Tangent", 10, 1, 11, 1))
sketch3.addConstraint(Sketcher.Constraint("Coincident", 11, 2, 9, 1))
sketch3.addConstraint(Sketcher.Constraint("Coincident", 12, 2, 13, 1))
sketch3.addConstraint(Sketcher.Constraint("Tangent", 13, 2, 14, 2))
sketch3.addConstraint(Sketcher.Constraint("Tangent", 14, 1, 12, 1))
sketch3.addConstraint(Sketcher.Constraint("Tangent", 15, 2, 16, 2))
sketch3.addConstraint(Sketcher.Constraint("Tangent", 16, 1, 17, 1))
sketch3.addConstraint(Sketcher.Constraint("Coincident", 17, 2, 15, 1))
sketch3.addConstraint(Sketcher.Constraint("Tangent", 18, 2, 19, 2))
sketch3.addConstraint(Sketcher.Constraint("Tangent", 19, 1, 20, 1))
sketch3.addConstraint(Sketcher.Constraint("Coincident", 20, 2, 18, 1))
sketch3.addConstraint(Sketcher.Constraint("Tangent", 21, 2, 22, 2))
sketch3.addConstraint(Sketcher.Constraint("Tangent", 22, 1, 23, 1))
sketch3.addConstraint(Sketcher.Constraint("Coincident", 23, 2, 21, 1))
sketch3.addConstraint(Sketcher.Constraint("Coincident", 24, 2, 25, 1))
sketch3.addConstraint(Sketcher.Constraint("Tangent", 25, 2, 26, 2))
sketch3.addConstraint(Sketcher.Constraint("Tangent", 26, 1, 24, 1))
sketch3.addConstraint(Sketcher.Constraint("Tangent", 27, 2, 28, 2))
sketch3.addConstraint(Sketcher.Constraint("Tangent", 28, 1, 29, 1))
sketch3.addConstraint(Sketcher.Constraint("Coincident", 29, 2, 27, 1))
sketch3.addConstraint(Sketcher.Constraint("Tangent", 30, 2, 31, 2))
sketch3.addConstraint(Sketcher.Constraint("Tangent", 31, 1, 32, 1))
sketch3.addConstraint(Sketcher.Constraint("Coincident", 32, 2, 30, 1))
sketch3.addConstraint(Sketcher.Constraint("Tangent", 33, 2, 34, 2))
sketch3.addConstraint(Sketcher.Constraint("Tangent", 34, 1, 35, 1))
sketch3.addConstraint(Sketcher.Constraint("Coincident", 35, 2, 33, 1))
sketch3.addConstraint(Sketcher.Constraint("Tangent", 36, 2, 37, 2))
sketch3.addConstraint(Sketcher.Constraint("Tangent", 37, 1, 38, 1))
sketch3.addConstraint(Sketcher.Constraint("Coincident", 38, 2, 36, 1))
sketch3.addConstraint(Sketcher.Constraint("Coincident", 39, 2, 40, 1))
sketch3.addConstraint(Sketcher.Constraint("Tangent", 40, 2, 41, 2))
sketch3.addConstraint(Sketcher.Constraint("Tangent", 41, 1, 39, 1))
sketch3.addConstraint(Sketcher.Constraint("Tangent", 42, 2, 43, 2))
sketch3.addConstraint(Sketcher.Constraint("Tangent", 43, 1, 44, 1))
sketch3.addConstraint(Sketcher.Constraint("Coincident", 44, 2, 42, 1))
sketch3.addConstraint(Sketcher.Constraint("Tangent", 45, 2, 46, 2))
sketch3.addConstraint(Sketcher.Constraint("Tangent", 46, 1, 47, 1))
sketch3.addConstraint(Sketcher.Constraint("Coincident", 47, 2, 45, 1))
sketch3.addConstraint(Sketcher.Constraint("Coincident", 48, 1, 49, 2))
sketch3.addConstraint(Sketcher.Constraint("Coincident", 49, 1, 48, 2))
sketch3.addConstraint(Sketcher.Constraint("Coincident", 50, 1, 51, 2))
sketch3.addConstraint(Sketcher.Constraint("Coincident", 51, 1, 50, 2))
sketch3.addConstraint(Sketcher.Constraint("Coincident", 52, 1, 53, 2))
sketch3.addConstraint(Sketcher.Constraint("Coincident", 53, 1, 52, 2))
sketch3.addConstraint(Sketcher.Constraint("Coincident", 54, 1, 55, 2))
sketch3.addConstraint(Sketcher.Constraint("Coincident", 55, 1, 54, 2))
sketch3.addConstraint(Sketcher.Constraint("Coincident", 56, 1, 57, 2))
sketch3.addConstraint(Sketcher.Constraint("Coincident", 57, 1, 56, 2))
sketch3.addConstraint(Sketcher.Constraint("Coincident", 58, 1, 59, 2))
sketch3.addConstraint(Sketcher.Constraint("Coincident", 59, 1, 58, 2))
sketch3.addConstraint(Sketcher.Constraint("Coincident", 60, 1, 61, 2))
sketch3.addConstraint(Sketcher.Constraint("Coincident", 61, 1, 60, 2))
sketch3.addConstraint(Sketcher.Constraint("Coincident", 62, 1, 63, 2))
sketch3.addConstraint(Sketcher.Constraint("Coincident", 63, 1, 62, 2))
sketch3.addConstraint(Sketcher.Constraint("Coincident", 64, 1, 65, 2))
sketch3.addConstraint(Sketcher.Constraint("Coincident", 65, 1, 64, 2))
sketch3.addConstraint(Sketcher.Constraint("Coincident", 66, 1, 67, 2))
sketch3.addConstraint(Sketcher.Constraint("Coincident", 67, 1, 66, 2))
sketch3.addConstraint(Sketcher.Constraint("Coincident", 68, 1, 69, 2))
sketch3.addConstraint(Sketcher.Constraint("Coincident", 69, 1, 68, 2))
sketch3.addConstraint(Sketcher.Constraint("Coincident", 70, 1, 71, 2))
sketch3.addConstraint(Sketcher.Constraint("Coincident", 71, 1, 70, 2))
sketch3.addConstraint(Sketcher.Constraint("Coincident", 72, 1, 73, 2))
sketch3.addConstraint(Sketcher.Constraint("Coincident", 73, 1, 72, 2))
sketch3.addConstraint(Sketcher.Constraint("Coincident", 74, 1, 75, 2))
sketch3.addConstraint(Sketcher.Constraint("Coincident", 75, 1, 74, 2))
sketch3.addConstraint(Sketcher.Constraint("Coincident", 76, 1, 77, 2))
sketch3.addConstraint(Sketcher.Constraint("Coincident", 77, 1, 76, 2))
sketch3.addConstraint(Sketcher.Constraint("Coincident", 78, 1, 79, 2))
sketch3.addConstraint(Sketcher.Constraint("Coincident", 79, 1, 78, 2))
sketch3.addConstraint(Sketcher.Constraint("Vertical", 1))
sketch3.addConstraint(Sketcher.Constraint("Horizontal", 2))
sketch3.addConstraint(Sketcher.Constraint("Horizontal", 4))
sketch3.addConstraint(Sketcher.Constraint("Vertical", 5))
sketch3.addConstraint(Sketcher.Constraint("Vertical", 6))
sketch3.addConstraint(Sketcher.Constraint("Horizontal", 8))
sketch3.addConstraint(Sketcher.Constraint("Horizontal", 9))
sketch3.addConstraint(Sketcher.Constraint("Vertical", 11))
sketch3.addConstraint(Sketcher.Constraint("Vertical", 12))
sketch3.addConstraint(Sketcher.Constraint("Horizontal", 13))
sketch3.addConstraint(Sketcher.Constraint("Vertical", 15))
sketch3.addConstraint(Sketcher.Constraint("Horizontal", 17))
sketch3.addConstraint(Sketcher.Constraint("Vertical", 18))
sketch3.addConstraint(Sketcher.Constraint("Horizontal", 20))
sketch3.addConstraint(Sketcher.Constraint("Horizontal", 21))
sketch3.addConstraint(Sketcher.Constraint("Vertical", 23))
sketch3.addConstraint(Sketcher.Constraint("Horizontal", 24))
sketch3.addConstraint(Sketcher.Constraint("Vertical", 25))
sketch3.addConstraint(Sketcher.Constraint("Horizontal", 27))
sketch3.addConstraint(Sketcher.Constraint("Vertical", 29))
sketch3.addConstraint(Sketcher.Constraint("Horizontal", 30))
sketch3.addConstraint(Sketcher.Constraint("Vertical", 32))
sketch3.addConstraint(Sketcher.Constraint("Vertical", 33))
sketch3.addConstraint(Sketcher.Constraint("Horizontal", 35))
sketch3.addConstraint(Sketcher.Constraint("Vertical", 36))
sketch3.addConstraint(Sketcher.Constraint("Horizontal", 38))
sketch3.addConstraint(Sketcher.Constraint("Vertical", 39))
sketch3.addConstraint(Sketcher.Constraint("Horizontal", 40))
sketch3.addConstraint(Sketcher.Constraint("Horizontal", 42))
sketch3.addConstraint(Sketcher.Constraint("Vertical", 44))
sketch3.addConstraint(Sketcher.Constraint("Vertical", 45))
sketch3.addConstraint(Sketcher.Constraint("Horizontal", 47))
sketch3.addConstraint(Sketcher.Constraint("Vertical", 49))
sketch3.addConstraint(Sketcher.Constraint("Vertical", 51))
sketch3.addConstraint(Sketcher.Constraint("Horizontal", 53))
sketch3.addConstraint(Sketcher.Constraint("Horizontal", 55))
sketch3.addConstraint(Sketcher.Constraint("Horizontal", 56))
sketch3.addConstraint(Sketcher.Constraint("Horizontal", 58))
sketch3.addConstraint(Sketcher.Constraint("Vertical", 60))
sketch3.addConstraint(Sketcher.Constraint("Vertical", 62))
sketch3.addConstraint(Sketcher.Constraint("Vertical", 64))
sketch3.addConstraint(Sketcher.Constraint("Vertical", 66))
sketch3.addConstraint(Sketcher.Constraint("Horizontal", 68))
sketch3.addConstraint(Sketcher.Constraint("Horizontal", 70))
sketch3.addConstraint(Sketcher.Constraint("Vertical", 72))
sketch3.addConstraint(Sketcher.Constraint("Vertical", 74))
sketch3.addConstraint(Sketcher.Constraint("Horizontal", 76))
sketch3.addConstraint(Sketcher.Constraint("Horizontal", 78))
sketch3.addConstraint(Sketcher.Constraint("Coincident", 3, 3, 0, 3))
sketch3.addConstraint(Sketcher.Constraint("Coincident", 10, 3, 7, 3))
sketch3.addConstraint(Sketcher.Constraint("Coincident", 16, 3, 14, 3))
sketch3.addConstraint(Sketcher.Constraint("Coincident", 22, 3, 19, 3))
sketch3.addConstraint(Sketcher.Constraint("Coincident", 28, 3, 26, 3))
sketch3.addConstraint(Sketcher.Constraint("Coincident", 34, 3, 31, 3))
sketch3.addConstraint(Sketcher.Constraint("Coincident", 41, 3, 37, 3))
sketch3.addConstraint(Sketcher.Constraint("Coincident", 46, 3, 43, 3))
sketch3.addConstraint(Sketcher.Constraint("Equal", 0, 3))
sketch3.addConstraint(Sketcher.Constraint("Equal", 3, 7))
sketch3.addConstraint(Sketcher.Constraint("Equal", 7, 10))
sketch3.addConstraint(Sketcher.Constraint("Equal", 10, 14))
sketch3.addConstraint(Sketcher.Constraint("Equal", 14, 16))
sketch3.addConstraint(Sketcher.Constraint("Equal", 16, 19))
sketch3.addConstraint(Sketcher.Constraint("Equal", 19, 22))
sketch3.addConstraint(Sketcher.Constraint("Equal", 22, 26))
sketch3.addConstraint(Sketcher.Constraint("Equal", 26, 28))
sketch3.addConstraint(Sketcher.Constraint("Equal", 28, 31))
sketch3.addConstraint(Sketcher.Constraint("Equal", 31, 34))
sketch3.addConstraint(Sketcher.Constraint("Equal", 34, 37))
sketch3.addConstraint(Sketcher.Constraint("Equal", 37, 41))
sketch3.addConstraint(Sketcher.Constraint("Equal", 41, 43))
sketch3.addConstraint(Sketcher.Constraint("Equal", 43, 46))
sketch3.addConstraint(Sketcher.Constraint("Equal", 48, 50))
sketch3.addConstraint(Sketcher.Constraint("Equal", 50, 52))
sketch3.addConstraint(Sketcher.Constraint("Equal", 52, 54))
sketch3.addConstraint(Sketcher.Constraint("Equal", 54, 57))
sketch3.addConstraint(Sketcher.Constraint("Equal", 57, 59))
sketch3.addConstraint(Sketcher.Constraint("Equal", 59, 61))
sketch3.addConstraint(Sketcher.Constraint("Equal", 61, 63))
sketch3.addConstraint(Sketcher.Constraint("Equal", 63, 65))
sketch3.addConstraint(Sketcher.Constraint("Equal", 65, 67))
sketch3.addConstraint(Sketcher.Constraint("Equal", 67, 69))
sketch3.addConstraint(Sketcher.Constraint("Equal", 69, 71))
sketch3.addConstraint(Sketcher.Constraint("Equal", 71, 73))
sketch3.addConstraint(Sketcher.Constraint("Equal", 73, 75))
sketch3.addConstraint(Sketcher.Constraint("Equal", 75, 77))
sketch3.addConstraint(Sketcher.Constraint("Equal", 77, 79))
sketch3.addConstraint(Sketcher.Constraint("Symmetric", 0, 3, 26, 3, -1, 1))
sketch3.addConstraint(Sketcher.Constraint("Symmetric", 7, 3, 31, 3, -1, 1))
sketch3.addConstraint(Sketcher.Constraint("Symmetric", 14, 3, 37, 3, -1, 1))
sketch3.addConstraint(Sketcher.Constraint("Symmetric", 19, 3, 43, 3, -1, 1))
sketch3.addConstraint(Sketcher.Constraint("Symmetric", 63, 3, 65, 3, -1, 1))
sketch3.addConstraint(Sketcher.Constraint("Symmetric", 61, 3, 67, 3, -1, 1))
sketch3.addConstraint(Sketcher.Constraint("Symmetric", 59, 3, 69, 3, -1, 1))
sketch3.addConstraint(Sketcher.Constraint("Symmetric", 57, 3, 71, 3, -1, 1))
sketch3.addConstraint(Sketcher.Constraint("Symmetric", 50, 3, 73, 3, -1, 1))
sketch3.addConstraint(Sketcher.Constraint("Symmetric", 48, 3, 75, 3, -1, 1))
sketch3.addConstraint(Sketcher.Constraint("Symmetric", 52, 3, 77, 3, -1, 1))
sketch3.addConstraint(Sketcher.Constraint("Symmetric", 54, 3, 79, 3, -1, 1))
sketch3.addConstraint(Sketcher.Constraint("Symmetric", 14, 3, 19, 3, -2))
sketch3.addConstraint(Sketcher.Constraint("Symmetric", 7, 3, 26, 3, -2))
sketch3.addConstraint(Sketcher.Constraint("Symmetric", 54, 3, 57, 3, -2))
sketch3.addConstraint(Sketcher.Constraint("Symmetric", 52, 3, 59, 3, -2))
sketch3.addConstraint(Sketcher.Constraint("Symmetric", 50, 3, 61, 3, -2))
sketch3.addConstraint(Sketcher.Constraint("Symmetric", 48, 3, 63, 3, -2))
sketch3.addConstraint(Sketcher.Constraint("Horizontal", 52, 3, 54, 3))
sketch3.addConstraint(Sketcher.Constraint("Horizontal", 79, 3, 16, 1))
sketch3.addConstraint(Sketcher.Constraint("Horizontal", 44, 2, 52, 1))
sketch3.addConstraint(Sketcher.Constraint("Horizontal", 53, 1, 54, 1))
sketch3.addConstraint(Sketcher.Constraint("Horizontal", 55, 1, 56, 1))
sketch3.addConstraint(Sketcher.Constraint("Horizontal", 57, 1, 58, 1))
sketch3.addConstraint(Sketcher.Constraint("Horizontal", 23, 2, 68, 1))
sketch3.addConstraint(Sketcher.Constraint("Horizontal", 69, 1, 70, 1))
sketch3.addConstraint(Sketcher.Constraint("Horizontal", 71, 1, 76, 1))
sketch3.addConstraint(Sketcher.Constraint("Horizontal", 77, 1, 78, 1))
sketch3.addConstraint(Sketcher.Constraint("Vertical", 48, 3, 50, 3))
sketch3.addConstraint(Sketcher.Constraint("Vertical", 67, 3, 0, 1))
sketch3.addConstraint(Sketcher.Constraint("Vertical", 8, 2, 48, 1))
sketch3.addConstraint(Sketcher.Constraint("Vertical", 49, 1, 50, 1))
sketch3.addConstraint(Sketcher.Constraint("Vertical", 35, 2, 60, 1))
sketch3.addConstraint(Sketcher.Constraint("Vertical", 61, 1, 62, 1))
sketch3.addConstraint(Sketcher.Constraint("Vertical", 51, 1, 64, 1))
sketch3.addConstraint(Sketcher.Constraint("Vertical", 65, 1, 66, 1))
sketch3.addConstraint(Sketcher.Constraint("Vertical", 63, 1, 72, 1))
sketch3.addConstraint(Sketcher.Constraint("Vertical", 73, 1, 74, 1))
sketch3.addConstraint(Sketcher.Constraint("Equal", 47, 53))
sketch3.addConstraint(Sketcher.Constraint("DistanceX", 48, 3, -1, 1, Q("0.5 in")))
sketch3.addConstraint(Sketcher.Constraint("DistanceY", -1, 1, 50, 3, Q("0.4 in")))
sketch3.addConstraint(Sketcher.Constraint("DistanceX", 52, 3, -1, 1, Q("0.4 in")))
sketch3.addConstraint(Sketcher.Constraint("DistanceY", -1, 1, 52, 3, Q("0.5 in")))
sketch3.addConstraint(Sketcher.Constraint("Radius", 0, Q("0.0435 in")))
sketch3.addConstraint(Sketcher.Constraint("DistanceY", -1, 1, 48, 3, Q("0.228 in")))
sketch3.addConstraint(Sketcher.Constraint("DistanceX", 54, 3, -1, 1, Q("0.228 in")))
sketch3.addConstraint(Sketcher.Constraint("DistanceY", -1, 1, 1, 2, Q("0.128 in")))
sketch3.addConstraint(Sketcher.Constraint("DistanceX", 12, 2, -1, 1, Q("0.128 in")))
pocket2 = body.newObject("PartDesign::Pocket", "Pocket001")
pocket2.Profile = sketch3
pocket2.Type = "ThroughAll"
doc.recompute()

fillet = body.newObject("PartDesign::Fillet", "Fillet")
fillet.Base = (pocket2, edges_at(pocket2, [
    (2.959, 4.521, 0),
    (-2.959, 4.521, 0),
    (-2.959, -4.521, 0),
    (2.959, -4.521, 0),
    (4.521, -2.959, 0),
    (4.521, 2.959, 0),
    (-4.521, 2.959, 0),
    (-4.521, -2.959, 0),
]))
fillet.setExpression("Radius", "Params.fillet_radius")
doc.recompute()

fillet2 = body.newObject("PartDesign::Fillet", "Fillet001")
fillet2.Base = (fillet, edges_at(fillet, [
    (-12.7, 12.7, 0),
    (12.7, 12.7, 0),
    (12.7, -12.7, 0),
    (-12.7, -12.7, 0),
]))
fillet2.setExpression("Radius", "Params.fillet2_radius")

doc.recompute()
